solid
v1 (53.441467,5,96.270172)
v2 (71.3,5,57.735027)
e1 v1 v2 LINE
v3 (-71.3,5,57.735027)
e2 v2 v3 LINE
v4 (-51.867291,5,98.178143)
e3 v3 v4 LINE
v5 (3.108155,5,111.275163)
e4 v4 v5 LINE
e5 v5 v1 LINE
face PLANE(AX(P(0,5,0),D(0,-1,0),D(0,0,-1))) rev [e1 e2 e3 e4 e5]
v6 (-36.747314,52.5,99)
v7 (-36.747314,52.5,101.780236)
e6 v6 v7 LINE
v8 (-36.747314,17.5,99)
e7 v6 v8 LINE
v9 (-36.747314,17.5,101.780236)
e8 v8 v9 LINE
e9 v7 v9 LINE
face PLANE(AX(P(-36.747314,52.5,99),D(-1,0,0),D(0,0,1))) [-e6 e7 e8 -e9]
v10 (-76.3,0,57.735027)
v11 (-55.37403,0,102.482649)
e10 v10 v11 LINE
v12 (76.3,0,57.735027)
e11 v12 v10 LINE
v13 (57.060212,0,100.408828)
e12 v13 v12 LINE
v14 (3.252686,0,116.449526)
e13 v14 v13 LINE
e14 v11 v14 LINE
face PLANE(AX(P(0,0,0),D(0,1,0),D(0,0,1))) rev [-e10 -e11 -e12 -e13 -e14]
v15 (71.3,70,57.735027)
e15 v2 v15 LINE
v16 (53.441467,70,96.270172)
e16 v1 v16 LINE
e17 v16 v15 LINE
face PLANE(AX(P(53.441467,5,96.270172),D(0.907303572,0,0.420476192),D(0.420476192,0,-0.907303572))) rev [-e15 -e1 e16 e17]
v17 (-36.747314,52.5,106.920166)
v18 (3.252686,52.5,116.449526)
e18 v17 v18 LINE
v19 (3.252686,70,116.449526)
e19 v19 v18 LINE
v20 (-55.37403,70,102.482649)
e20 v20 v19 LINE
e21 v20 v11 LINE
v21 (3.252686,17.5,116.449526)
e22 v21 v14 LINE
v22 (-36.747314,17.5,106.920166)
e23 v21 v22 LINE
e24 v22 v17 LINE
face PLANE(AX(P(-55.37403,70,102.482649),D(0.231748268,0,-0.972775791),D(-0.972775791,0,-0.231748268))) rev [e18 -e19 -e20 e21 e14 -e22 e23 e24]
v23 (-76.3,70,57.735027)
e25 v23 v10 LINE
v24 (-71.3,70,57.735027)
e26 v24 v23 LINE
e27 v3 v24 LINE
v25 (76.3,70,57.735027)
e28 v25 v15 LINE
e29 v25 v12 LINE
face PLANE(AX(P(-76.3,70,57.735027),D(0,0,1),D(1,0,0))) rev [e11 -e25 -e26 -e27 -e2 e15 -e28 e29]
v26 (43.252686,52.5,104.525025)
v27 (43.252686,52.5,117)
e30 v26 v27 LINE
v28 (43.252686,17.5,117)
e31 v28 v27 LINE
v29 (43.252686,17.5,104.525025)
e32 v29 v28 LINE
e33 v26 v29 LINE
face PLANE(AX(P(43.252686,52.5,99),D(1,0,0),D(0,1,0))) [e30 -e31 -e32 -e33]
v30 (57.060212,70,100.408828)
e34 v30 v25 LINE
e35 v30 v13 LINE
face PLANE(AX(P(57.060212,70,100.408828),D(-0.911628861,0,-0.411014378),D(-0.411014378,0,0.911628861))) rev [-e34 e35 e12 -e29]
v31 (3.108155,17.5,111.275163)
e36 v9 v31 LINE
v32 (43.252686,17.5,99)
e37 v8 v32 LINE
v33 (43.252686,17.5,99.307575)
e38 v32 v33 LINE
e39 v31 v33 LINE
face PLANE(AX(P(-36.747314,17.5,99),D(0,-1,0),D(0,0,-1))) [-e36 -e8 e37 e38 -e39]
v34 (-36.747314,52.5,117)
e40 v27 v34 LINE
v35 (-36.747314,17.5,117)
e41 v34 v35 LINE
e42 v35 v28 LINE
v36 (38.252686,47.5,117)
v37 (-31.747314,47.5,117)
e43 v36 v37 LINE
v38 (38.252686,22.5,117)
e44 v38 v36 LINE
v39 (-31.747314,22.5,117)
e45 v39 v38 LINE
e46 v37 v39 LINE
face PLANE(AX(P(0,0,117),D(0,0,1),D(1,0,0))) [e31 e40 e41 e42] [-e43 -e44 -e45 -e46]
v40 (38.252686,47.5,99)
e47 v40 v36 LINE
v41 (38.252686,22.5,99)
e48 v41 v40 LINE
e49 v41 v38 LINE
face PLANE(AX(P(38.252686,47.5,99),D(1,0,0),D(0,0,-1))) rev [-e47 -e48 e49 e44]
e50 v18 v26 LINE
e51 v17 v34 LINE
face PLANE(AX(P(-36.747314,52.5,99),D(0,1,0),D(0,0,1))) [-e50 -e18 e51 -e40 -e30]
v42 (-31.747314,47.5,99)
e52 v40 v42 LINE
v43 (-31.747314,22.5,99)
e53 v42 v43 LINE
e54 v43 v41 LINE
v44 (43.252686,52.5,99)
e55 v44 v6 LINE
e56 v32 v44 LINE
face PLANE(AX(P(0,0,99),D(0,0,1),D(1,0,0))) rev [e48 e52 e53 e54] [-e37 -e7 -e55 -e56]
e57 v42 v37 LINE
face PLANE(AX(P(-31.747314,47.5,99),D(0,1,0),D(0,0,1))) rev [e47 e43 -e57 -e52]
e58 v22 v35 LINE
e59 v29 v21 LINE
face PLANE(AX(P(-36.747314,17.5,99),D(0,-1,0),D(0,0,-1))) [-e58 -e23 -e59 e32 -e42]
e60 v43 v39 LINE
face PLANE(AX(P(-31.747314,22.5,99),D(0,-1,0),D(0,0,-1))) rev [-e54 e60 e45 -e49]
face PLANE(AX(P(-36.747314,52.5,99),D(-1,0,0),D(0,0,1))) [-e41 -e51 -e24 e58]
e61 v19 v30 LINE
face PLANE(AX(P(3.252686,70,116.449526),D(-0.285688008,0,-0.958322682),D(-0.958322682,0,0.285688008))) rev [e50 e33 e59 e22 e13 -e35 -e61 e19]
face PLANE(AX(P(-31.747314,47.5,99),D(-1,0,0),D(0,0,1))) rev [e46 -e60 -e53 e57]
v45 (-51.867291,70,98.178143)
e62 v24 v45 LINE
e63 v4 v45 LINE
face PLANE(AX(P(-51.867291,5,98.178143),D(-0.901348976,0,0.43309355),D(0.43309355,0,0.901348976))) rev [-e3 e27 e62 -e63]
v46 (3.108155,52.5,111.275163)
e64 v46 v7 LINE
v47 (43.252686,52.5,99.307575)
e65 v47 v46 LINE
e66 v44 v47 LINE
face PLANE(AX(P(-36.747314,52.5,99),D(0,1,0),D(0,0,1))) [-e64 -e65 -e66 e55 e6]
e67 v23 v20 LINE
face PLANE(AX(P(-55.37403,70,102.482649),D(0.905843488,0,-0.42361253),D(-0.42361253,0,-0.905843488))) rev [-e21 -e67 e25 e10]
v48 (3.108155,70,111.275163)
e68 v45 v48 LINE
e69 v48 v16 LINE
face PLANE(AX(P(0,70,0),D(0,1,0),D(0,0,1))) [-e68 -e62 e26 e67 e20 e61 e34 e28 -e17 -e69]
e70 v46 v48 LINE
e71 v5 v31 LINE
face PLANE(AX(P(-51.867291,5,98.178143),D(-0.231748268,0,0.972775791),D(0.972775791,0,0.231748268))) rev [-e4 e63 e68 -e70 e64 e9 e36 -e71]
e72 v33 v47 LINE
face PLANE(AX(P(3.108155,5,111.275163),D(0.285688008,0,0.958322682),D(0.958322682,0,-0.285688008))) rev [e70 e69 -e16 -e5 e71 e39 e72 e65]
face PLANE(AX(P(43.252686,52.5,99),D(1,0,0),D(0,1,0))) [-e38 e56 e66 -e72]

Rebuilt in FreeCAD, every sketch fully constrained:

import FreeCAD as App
import Part
import Sketcher
Q = App.Units.Quantity

doc = App.newDocument("Part")
params = doc.addObject("Spreadsheet::Sheet", "Params")
for row, (alias, value) in enumerate([
    ("sketch1_width", "152.6 mm"),
    ("pad1_length", "70 mm"),
    ("sketch2_width", "142.6 mm"),
    ("pocket1_length", "65 mm"),
    ("sketch3_width", "80 mm"),
    ("sketch3_height", "35 mm"),
    ("pad2_length", "18 mm"),
    ("sketch4_width", "70 mm"),
    ("sketch4_height", "25 mm"),
    ("pocket2_length", "18 mm"),
], start=1):
    params.set(f"A{row}", alias)
    params.set(f"B{row}", "=" + value)
    params.setAlias(f"B{row}", alias)

body = doc.addObject("PartDesign::Body", "Body")

sketch1 = body.newObject("Sketcher::SketchObject", "Sketch")
sketch1.AttachmentSupport = (doc.getObject("XZ_Plane"), [""])
sketch1.MapMode = "FlatFace"
sketch1.addGeometry(Part.LineSegment(App.Vector(-55, 102, 0), App.Vector(3, 116, 0)), False)
sketch1.addGeometry(Part.LineSegment(App.Vector(3, 116, 0), App.Vector(57, 100, 0)), False)
sketch1.addGeometry(Part.LineSegment(App.Vector(57, 100, 0), App.Vector(76, 58, 0)), False)
sketch1.addGeometry(Part.LineSegment(App.Vector(76, 58, 0), App.Vector(-76, 58, 0)), False)
sketch1.addGeometry(Part.LineSegment(App.Vector(-76, 58, 0), App.Vector(-55, 102, 0)), False)
sketch1.addConstraint(Sketcher.Constraint("Coincident", 0, 2, 1, 1))
sketch1.addConstraint(Sketcher.Constraint("Coincident", 1, 2, 2, 1))
sketch1.addConstraint(Sketcher.Constraint("Coincident", 2, 2, 3, 1))
sketch1.addConstraint(Sketcher.Constraint("Coincident", 3, 2, 4, 1))
sketch1.addConstraint(Sketcher.Constraint("Coincident", 4, 2, 0, 1))
sketch1.addConstraint(Sketcher.Constraint("Horizontal", 3))
sketch1.addConstraint(Sketcher.Constraint("DistanceX", 3, 2, 3, 1, Q("152.6 mm")))
sketch1.addConstraint(Sketcher.Constraint("DistanceX", -1, 1, 2, 2, Q("76.3 mm")))
sketch1.addConstraint(Sketcher.Constraint("DistanceY", 1, 2, 0, 2, Q("16.040698 mm")))
sketch1.addConstraint(Sketcher.Constraint("DistanceY", 2, 2, 1, 2, Q("42.673801 mm")))
sketch1.addConstraint(Sketcher.Constraint("Distance", 0, Q("60.26745 mm")))
sketch1.addConstraint(Sketcher.Constraint("DistanceX", 4, 2, -1, 1, Q("55.37403 mm")))
sketch1.addConstraint(Sketcher.Constraint("DistanceY", -1, 1, 4, 2, Q("102.482649 mm")))
sketch1.addConstraint(Sketcher.Constraint("DistanceY", 1, 2, 4, 2, Q("2.073821 mm")))
sketch1.addConstraint(Sketcher.Constraint("Distance", 1, Q("56.147608 mm")))
sketch1.setExpression("Constraints[6]", "Params.sketch1_width")
pad1 = body.newObject("PartDesign::Pad", "Pad")
pad1.Profile = sketch1
pad1.setExpression("Length", "Params.pad1_length")
pad1.Reversed = True

sketch2 = body.newObject("Sketcher::SketchObject", "Sketch001")
sketch2.AttachmentSupport = (doc.getObject("XZ_Plane"), [""])
sketch2.MapMode = "FlatFace"
sketch2.AttachmentOffset = App.Placement(App.Vector(0, 0, -70), App.Rotation())
sketch2.addGeometry(Part.LineSegment(App.Vector(-52, 98, 0), App.Vector(3, 111, 0)), False)
sketch2.addGeometry(Part.LineSegment(App.Vector(3, 111, 0), App.Vector(53, 96, 0)), False)
sketch2.addGeometry(Part.LineSegment(App.Vector(53, 96, 0), App.Vector(71, 58, 0)), False)
sketch2.addGeometry(Part.LineSegment(App.Vector(71, 58, 0), App.Vector(-71, 58, 0)), False)
sketch2.addGeometry(Part.LineSegment(App.Vector(-71, 58, 0), App.Vector(-52, 98, 0)), False)
sketch2.addConstraint(Sketcher.Constraint("Coincident", 0, 2, 1, 1))
sketch2.addConstraint(Sketcher.Constraint("Coincident", 1, 2, 2, 1))
sketch2.addConstraint(Sketcher.Constraint("Coincident", 2, 2, 3, 1))
sketch2.addConstraint(Sketcher.Constraint("Coincident", 3, 2, 4, 1))
sketch2.addConstraint(Sketcher.Constraint("Coincident", 4, 2, 0, 1))
sketch2.addConstraint(Sketcher.Constraint("Horizontal", 3))
sketch2.addConstraint(Sketcher.Constraint("DistanceX", 3, 2, 3, 1, Q("142.6 mm")))
sketch2.addConstraint(Sketcher.Constraint("DistanceX", -1, 1, 2, 2, Q("71.3 mm")))
sketch2.addConstraint(Sketcher.Constraint("Distance", 1, Q("52.5223 mm")))
sketch2.addConstraint(Sketcher.Constraint("DistanceX", 4, 2, -1, 1, Q("51.867291 mm")))
sketch2.addConstraint(Sketcher.Constraint("DistanceX", 0, 2, 1, 2, Q("50.333312 mm")))
sketch2.addConstraint(Sketcher.Constraint("DistanceY", 4, 2, 0, 2, Q("13.09702 mm")))
sketch2.addConstraint(Sketcher.Constraint("Distance", 0, Q("56.513994 mm")))
sketch2.addConstraint(Sketcher.Constraint("Distance", 2, Q("42.472163 mm")))
sketch2.addConstraint(Sketcher.Constraint("DistanceY", -1, 1, 0, 2, Q("111.275163 mm")))
sketch2.setExpression("Constraints[6]", "Params.sketch2_width")
pocket1 = body.newObject("PartDesign::Pocket", "Pocket")
pocket1.Profile = sketch2
pocket1.setExpression("Length", "Params.pocket1_length")
pocket1.Reversed = True

sketch3 = body.newObject("Sketcher::SketchObject", "Sketch002")
sketch3.AttachmentSupport = (doc.getObject("XY_Plane"), [""])
sketch3.MapMode = "FlatFace"
sketch3.AttachmentOffset = App.Placement(App.Vector(0, 0, 117), App.Rotation())
sketch3.addGeometry(Part.LineSegment(App.Vector(-37, 52, 0), App.Vector(-37, 18, 0)), False)
sketch3.addGeometry(Part.LineSegment(App.Vector(-37, 18, 0), App.Vector(43, 18, 0)), False)
sketch3.addGeometry(Part.LineSegment(App.Vector(43, 18, 0), App.Vector(43, 52, 0)), False)
sketch3.addGeometry(Part.LineSegment(App.Vector(43, 52, 0), App.Vector(-37, 52, 0)), False)
sketch3.addConstraint(Sketcher.Constraint("Coincident", 0, 2, 1, 1))
sketch3.addConstraint(Sketcher.Constraint("Coincident", 1, 2, 2, 1))
sketch3.addConstraint(Sketcher.Constraint("Coincident", 2, 2, 3, 1))
sketch3.addConstraint(Sketcher.Constraint("Coincident", 3, 2, 0, 1))
sketch3.addConstraint(Sketcher.Constraint("Vertical", 0))
sketch3.addConstraint(Sketcher.Constraint("Horizontal", 1))
sketch3.addConstraint(Sketcher.Constraint("Vertical", 2))
sketch3.addConstraint(Sketcher.Constraint("Horizontal", 3))
sketch3.addConstraint(Sketcher.Constraint("DistanceX", 1, 1, 1, 2, Q("80 mm")))
sketch3.addConstraint(Sketcher.Constraint("DistanceY", 0, 2, 0, 1, Q("35 mm")))
sketch3.addConstraint(Sketcher.Constraint("DistanceY", -1, 1, 0, 2, Q("17.5 mm")))
sketch3.addConstraint(Sketcher.Constraint("DistanceX", 0, 2, -1, 1, Q("36.747314 mm")))
sketch3.setExpression("Constraints[8]", "Params.sketch3_width")
sketch3.setExpression("Constraints[9]", "Params.sketch3_height")
pad2 = body.newObject("PartDesign::Pad", "Pad001")
pad2.Profile = sketch3
pad2.setExpression("Length", "Params.pad2_length")
pad2.Reversed = True

sketch4 = body.newObject("Sketcher::SketchObject", "Sketch003")
sketch4.AttachmentSupport = (doc.getObject("XY_Plane"), [""])
sketch4.MapMode = "FlatFace"
sketch4.AttachmentOffset = App.Placement(App.Vector(0, 0, 117), App.Rotation())
sketch4.addGeometry(Part.LineSegment(App.Vector(-32, 48, 0), App.Vector(-32, 22, 0)), False)
sketch4.addGeometry(Part.LineSegment(App.Vector(-32, 22, 0), App.Vector(38, 22, 0)), False)
sketch4.addGeometry(Part.LineSegment(App.Vector(38, 22, 0), App.Vector(38, 48, 0)), False)
sketch4.addGeometry(Part.LineSegment(App.Vector(38, 48, 0), App.Vector(-32, 48, 0)), False)
sketch4.addConstraint(Sketcher.Constraint("Coincident", 0, 2, 1, 1))
sketch4.addConstraint(Sketcher.Constraint("Coincident", 1, 2, 2, 1))
sketch4.addConstraint(Sketcher.Constraint("Coincident", 2, 2, 3, 1))
sketch4.addConstraint(Sketcher.Constraint("Coincident", 3, 2, 0, 1))
sketch4.addConstraint(Sketcher.Constraint("Vertical", 0))
sketch4.addConstraint(Sketcher.Constraint("Horizontal", 1))
sketch4.addConstraint(Sketcher.Constraint("Vertical", 2))
sketch4.addConstraint(Sketcher.Constraint("Horizontal", 3))
sketch4.addConstraint(Sketcher.Constraint("DistanceX", 1, 1, 1, 2, Q("70 mm")))
sketch4.addConstraint(Sketcher.Constraint("DistanceY", 0, 2, 0, 1, Q("25 mm")))
sketch4.addConstraint(Sketcher.Constraint("DistanceY", -1, 1, 0, 2, Q("22.5 mm")))
sketch4.addConstraint(Sketcher.Constraint("DistanceX", 0, 2, -1, 1, Q("31.747314 mm")))
sketch4.setExpression("Constraints[8]", "Params.sketch4_width")
sketch4.setExpression("Constraints[9]", "Params.sketch4_height")
pocket2 = body.newObject("PartDesign::Pocket", "Pocket001")
pocket2.Profile = sketch4
pocket2.setExpression("Length", "Params.pocket2_length")

doc.recompute()
